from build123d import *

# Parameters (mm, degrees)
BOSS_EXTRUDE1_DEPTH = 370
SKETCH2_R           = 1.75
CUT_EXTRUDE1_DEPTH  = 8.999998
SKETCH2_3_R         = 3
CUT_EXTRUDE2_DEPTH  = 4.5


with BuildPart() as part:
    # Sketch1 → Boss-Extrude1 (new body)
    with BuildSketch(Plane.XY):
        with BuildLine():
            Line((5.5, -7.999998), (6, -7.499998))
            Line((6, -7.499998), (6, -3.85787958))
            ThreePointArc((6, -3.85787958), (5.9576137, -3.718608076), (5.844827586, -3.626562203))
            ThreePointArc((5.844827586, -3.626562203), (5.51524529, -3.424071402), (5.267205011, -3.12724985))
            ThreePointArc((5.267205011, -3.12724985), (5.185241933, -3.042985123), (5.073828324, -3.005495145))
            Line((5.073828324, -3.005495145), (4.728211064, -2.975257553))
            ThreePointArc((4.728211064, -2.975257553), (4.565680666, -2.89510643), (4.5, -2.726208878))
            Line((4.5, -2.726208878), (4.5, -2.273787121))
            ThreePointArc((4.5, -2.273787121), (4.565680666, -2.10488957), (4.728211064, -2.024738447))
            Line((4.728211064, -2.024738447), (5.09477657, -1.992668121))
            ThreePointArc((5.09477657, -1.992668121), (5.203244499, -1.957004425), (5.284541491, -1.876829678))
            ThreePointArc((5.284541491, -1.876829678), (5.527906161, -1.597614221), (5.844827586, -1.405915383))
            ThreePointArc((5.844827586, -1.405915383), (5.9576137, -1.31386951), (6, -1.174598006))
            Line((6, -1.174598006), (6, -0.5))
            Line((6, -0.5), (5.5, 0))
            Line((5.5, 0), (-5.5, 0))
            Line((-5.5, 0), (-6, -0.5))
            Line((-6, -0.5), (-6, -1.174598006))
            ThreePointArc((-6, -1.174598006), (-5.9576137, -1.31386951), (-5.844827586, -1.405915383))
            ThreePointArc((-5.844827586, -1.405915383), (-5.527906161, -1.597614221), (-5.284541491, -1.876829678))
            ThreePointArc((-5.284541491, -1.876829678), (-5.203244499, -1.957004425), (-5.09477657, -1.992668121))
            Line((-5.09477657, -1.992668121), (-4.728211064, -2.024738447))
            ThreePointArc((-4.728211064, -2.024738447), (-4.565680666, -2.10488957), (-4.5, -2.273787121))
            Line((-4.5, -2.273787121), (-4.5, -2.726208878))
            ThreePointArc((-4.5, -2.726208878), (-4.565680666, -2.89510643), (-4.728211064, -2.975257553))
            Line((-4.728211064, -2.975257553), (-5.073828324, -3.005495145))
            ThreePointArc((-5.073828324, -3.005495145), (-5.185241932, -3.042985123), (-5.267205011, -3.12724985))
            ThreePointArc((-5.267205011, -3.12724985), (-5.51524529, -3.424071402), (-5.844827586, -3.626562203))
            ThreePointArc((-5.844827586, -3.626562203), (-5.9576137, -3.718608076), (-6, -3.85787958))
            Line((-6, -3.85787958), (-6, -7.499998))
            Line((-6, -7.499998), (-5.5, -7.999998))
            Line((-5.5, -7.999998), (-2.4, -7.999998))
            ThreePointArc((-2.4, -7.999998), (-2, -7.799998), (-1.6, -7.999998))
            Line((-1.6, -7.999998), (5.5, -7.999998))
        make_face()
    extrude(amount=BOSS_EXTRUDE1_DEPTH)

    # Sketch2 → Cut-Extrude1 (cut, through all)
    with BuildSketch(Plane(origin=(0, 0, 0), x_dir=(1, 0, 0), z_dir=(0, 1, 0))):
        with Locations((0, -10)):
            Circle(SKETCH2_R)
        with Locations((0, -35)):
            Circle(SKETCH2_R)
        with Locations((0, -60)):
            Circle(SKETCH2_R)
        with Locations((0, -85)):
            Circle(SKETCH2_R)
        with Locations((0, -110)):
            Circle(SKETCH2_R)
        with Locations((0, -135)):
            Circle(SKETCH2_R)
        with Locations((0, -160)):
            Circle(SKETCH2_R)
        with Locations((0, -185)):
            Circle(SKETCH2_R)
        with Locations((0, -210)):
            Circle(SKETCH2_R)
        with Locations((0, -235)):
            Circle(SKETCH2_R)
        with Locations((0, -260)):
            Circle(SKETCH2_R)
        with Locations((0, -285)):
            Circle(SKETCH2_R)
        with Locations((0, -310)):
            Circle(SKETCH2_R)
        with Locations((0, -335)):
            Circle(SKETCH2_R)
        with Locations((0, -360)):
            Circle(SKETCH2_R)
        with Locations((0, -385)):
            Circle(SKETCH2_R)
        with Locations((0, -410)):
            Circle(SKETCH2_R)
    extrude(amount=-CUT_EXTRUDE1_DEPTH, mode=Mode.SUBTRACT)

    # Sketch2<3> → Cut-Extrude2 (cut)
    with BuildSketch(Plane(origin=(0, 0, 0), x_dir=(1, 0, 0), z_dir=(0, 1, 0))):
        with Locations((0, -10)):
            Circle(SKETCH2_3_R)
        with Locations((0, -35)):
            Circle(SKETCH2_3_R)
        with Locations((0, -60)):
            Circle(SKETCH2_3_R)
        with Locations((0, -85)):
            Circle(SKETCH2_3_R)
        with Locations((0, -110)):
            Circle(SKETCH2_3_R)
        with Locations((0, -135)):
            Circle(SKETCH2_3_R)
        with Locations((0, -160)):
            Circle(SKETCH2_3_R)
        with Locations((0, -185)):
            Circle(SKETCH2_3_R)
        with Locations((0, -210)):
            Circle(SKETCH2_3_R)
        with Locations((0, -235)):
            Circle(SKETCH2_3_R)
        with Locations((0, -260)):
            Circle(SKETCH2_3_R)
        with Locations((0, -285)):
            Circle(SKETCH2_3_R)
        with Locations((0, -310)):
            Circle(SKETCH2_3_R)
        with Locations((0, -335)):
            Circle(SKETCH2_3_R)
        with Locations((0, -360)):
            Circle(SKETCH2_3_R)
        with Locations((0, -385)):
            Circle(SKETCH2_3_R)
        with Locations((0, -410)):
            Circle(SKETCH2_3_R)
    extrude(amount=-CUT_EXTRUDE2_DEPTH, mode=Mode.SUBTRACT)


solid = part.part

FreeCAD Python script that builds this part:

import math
import FreeCAD as App
import Part
import Sketcher

V = App.Vector
Q = App.Units.Quantity

doc = App.newDocument("Part")
body = doc.addObject("PartDesign::Body", "Body")

# Sketch on XY plane
sketch1 = doc.addObject("Sketcher::SketchObject", "Sketch")
body.addObject(sketch1)
sketch1.AttachmentSupport = (doc.XY_Plane, [""])
sketch1.MapMode = "FlatFace"
sketch1.addGeometry(Part.LineSegment(V(5.5, -7.999998, 0), V(6, -7.499998, 0)), False)
sketch1.addGeometry(Part.LineSegment(V(6, -7.499998, 0), V(6, -3.85788, 0)), False)
sketch1.addGeometry(Part.ArcOfCircle(Part.Circle(V(5.75, -3.85788, 0), V(0, 0, 1), 0.25), math.radians(0), math.radians(67.70903)), False)
sketch1.addGeometry(Part.ArcOfCircle(Part.Circle(V(6.3, -2.516239, 0), V(0, 0, 1), 1.2), math.radians(-149.391049), math.radians(-112.29097)), False)
sketch1.addGeometry(Part.ArcOfCircle(Part.Circle(V(5.052039, -3.254544, 0), V(0, 0, 1), 0.25), math.radians(30.608951), math.radians(85)), False)
sketch1.addGeometry(Part.LineSegment(V(5.073828, -3.005495, 0), V(4.728211, -2.975258, 0)), False)
sketch1.addGeometry(Part.ArcOfCircle(Part.Circle(V(4.75, -2.726209, 0), V(0, 0, 1), 0.25), math.radians(-180), math.radians(-95)), False)
sketch1.addGeometry(Part.LineSegment(V(4.5, -2.726209, 0), V(4.5, -2.273787, 0)), False)
sketch1.addGeometry(Part.ArcOfCircle(Part.Circle(V(4.75, -2.273787, 0), V(0, 0, 1), 0.25), math.radians(95), math.radians(180)), False)
sketch1.addGeometry(Part.LineSegment(V(4.728211, -2.024738, 0), V(5.094777, -1.992668, 0)), False)
sketch1.addGeometry(Part.ArcOfCircle(Part.Circle(V(5.072988, -1.743619, 0), V(0, 0, 1), 0.25), math.radians(-85), math.radians(-32.197607)), False)
sketch1.addGeometry(Part.ArcOfCircle(Part.Circle(V(6.3, -2.516239, 0), V(0, 0, 1), 1.2), math.radians(112.29097), math.radians(147.802393)), False)
sketch1.addGeometry(Part.ArcOfCircle(Part.Circle(V(5.75, -1.174598, 0), V(0, 0, 1), 0.25), math.radians(-67.70903), math.radians(0)), False)
sketch1.addGeometry(Part.LineSegment(V(6, -1.174598, 0), V(6, -0.5, 0)), False)
sketch1.addGeometry(Part.LineSegment(V(6, -0.5, 0), V(5.5, 0, 0)), False)
sketch1.addGeometry(Part.LineSegment(V(5.5, 0, 0), V(-5.5, 0, 0)), False)
sketch1.addGeometry(Part.LineSegment(V(-5.5, 0, 0), V(-6, -0.5, 0)), False)
sketch1.addGeometry(Part.LineSegment(V(-6, -0.5, 0), V(-6, -1.174598, 0)), False)
sketch1.addGeometry(Part.ArcOfCircle(Part.Circle(V(-5.75, -1.174598, 0), V(0, 0, 1), 0.25), math.radians(180), math.radians(247.70903)), False)
sketch1.addGeometry(Part.ArcOfCircle(Part.Circle(V(-6.3, -2.516239, 0), V(0, 0, 1), 1.2), math.radians(32.197607), math.radians(67.70903)), False)
sketch1.addGeometry(Part.ArcOfCircle(Part.Circle(V(-5.072988, -1.743619, 0), V(0, 0, 1), 0.25), math.radians(-147.802393), math.radians(-95)), False)
sketch1.addGeometry(Part.LineSegment(V(-5.094777, -1.992668, 0), V(-4.728211, -2.024738, 0)), False)
sketch1.addGeometry(Part.ArcOfCircle(Part.Circle(V(-4.75, -2.273787, 0), V(0, 0, 1), 0.25), math.radians(0), math.radians(85)), False)
sketch1.addGeometry(Part.LineSegment(V(-4.5, -2.273787, 0), V(-4.5, -2.726209, 0)), False)
sketch1.addGeometry(Part.ArcOfCircle(Part.Circle(V(-4.75, -2.726209, 0), V(0, 0, 1), 0.25), math.radians(-85), math.radians(0)), False)
sketch1.addGeometry(Part.LineSegment(V(-4.728211, -2.975258, 0), V(-5.073828, -3.005495, 0)), False)
sketch1.addGeometry(Part.ArcOfCircle(Part.Circle(V(-5.052039, -3.254544, 0), V(0, 0, 1), 0.25), math.radians(95), math.radians(149.391049)), False)
sketch1.addGeometry(Part.ArcOfCircle(Part.Circle(V(-6.3, -2.516239, 0), V(0, 0, 1), 1.2), math.radians(-67.70903), math.radians(-30.608951)), False)
sketch1.addGeometry(Part.ArcOfCircle(Part.Circle(V(-5.75, -3.85788, 0), V(0, 0, 1), 0.25), math.radians(112.29097), math.radians(180)), False)
sketch1.addGeometry(Part.LineSegment(V(-6, -3.85788, 0), V(-6, -7.499998, 0)), False)
sketch1.addGeometry(Part.LineSegment(V(-6, -7.499998, 0), V(-5.5, -7.999998, 0)), False)
sketch1.addGeometry(Part.LineSegment(V(-5.5, -7.999998, 0), V(-2.4, -7.999998, 0)), False)
sketch1.addGeometry(Part.ArcOfCircle(Part.Circle(V(-2, -8.299998, 0), V(0, 0, 1), 0.5), math.radians(36.869898), math.radians(143.130102)), False)
sketch1.addGeometry(Part.LineSegment(V(-1.6, -7.999998, 0), V(5.5, -7.999998, 0)), False)
sketch1.addConstraint(Sketcher.Constraint("Coincident", 0, 2, 1, 1))
sketch1.addConstraint(Sketcher.Constraint("Tangent", 1, 2, 2, 1))
sketch1.addConstraint(Sketcher.Constraint("Tangent", 2, 2, 3, 2))
sketch1.addConstraint(Sketcher.Constraint("Tangent", 3, 1, 4, 1))
sketch1.addConstraint(Sketcher.Constraint("Tangent", 4, 2, 5, 1))
sketch1.addConstraint(Sketcher.Constraint("Tangent", 5, 2, 6, 2))
sketch1.addConstraint(Sketcher.Constraint("Tangent", 6, 1, 7, 1))
sketch1.addConstraint(Sketcher.Constraint("Tangent", 7, 2, 8, 2))
sketch1.addConstraint(Sketcher.Constraint("Tangent", 8, 1, 9, 1))
sketch1.addConstraint(Sketcher.Constraint("Tangent", 9, 2, 10, 1))
sketch1.addConstraint(Sketcher.Constraint("Tangent", 10, 2, 11, 2))
sketch1.addConstraint(Sketcher.Constraint("Tangent", 11, 1, 12, 1))
sketch1.addConstraint(Sketcher.Constraint("Tangent", 12, 2, 13, 1))
sketch1.addConstraint(Sketcher.Constraint("Coincident", 13, 2, 14, 1))
sketch1.addConstraint(Sketcher.Constraint("Coincident", 14, 2, 15, 1))
sketch1.addConstraint(Sketcher.Constraint("Coincident", 15, 2, 16, 1))
sketch1.addConstraint(Sketcher.Constraint("Coincident", 16, 2, 17, 1))
sketch1.addConstraint(Sketcher.Constraint("Tangent", 17, 2, 18, 1))
sketch1.addConstraint(Sketcher.Constraint("Tangent", 18, 2, 19, 2))
sketch1.addConstraint(Sketcher.Constraint("Tangent", 19, 1, 20, 1))
sketch1.addConstraint(Sketcher.Constraint("Tangent", 20, 2, 21, 1))
sketch1.addConstraint(Sketcher.Constraint("Tangent", 21, 2, 22, 2))
sketch1.addConstraint(Sketcher.Constraint("Tangent", 22, 1, 23, 1))
sketch1.addConstraint(Sketcher.Constraint("Tangent", 23, 2, 24, 2))
sketch1.addConstraint(Sketcher.Constraint("Tangent", 24, 1, 25, 1))
sketch1.addConstraint(Sketcher.Constraint("Tangent", 25, 2, 26, 1))
sketch1.addConstraint(Sketcher.Constraint("Tangent", 26, 2, 27, 2))
sketch1.addConstraint(Sketcher.Constraint("Tangent", 27, 1, 28, 1))
sketch1.addConstraint(Sketcher.Constraint("Tangent", 28, 2, 29, 1))
sketch1.addConstraint(Sketcher.Constraint("Coincident", 29, 2, 30, 1))
sketch1.addConstraint(Sketcher.Constraint("Coincident", 30, 2, 31, 1))
sketch1.addConstraint(Sketcher.Constraint("Coincident", 31, 2, 32, 2))
sketch1.addConstraint(Sketcher.Constraint("Coincident", 32, 1, 33, 1))
sketch1.addConstraint(Sketcher.Constraint("Coincident", 33, 2, 0, 1))
sketch1.addConstraint(Sketcher.Constraint("Vertical", 1))
sketch1.addConstraint(Sketcher.Constraint("Vertical", 7))
sketch1.addConstraint(Sketcher.Constraint("Vertical", 13))
sketch1.addConstraint(Sketcher.Constraint("Horizontal", 15))
sketch1.addConstraint(Sketcher.Constraint("Vertical", 17))
sketch1.addConstraint(Sketcher.Constraint("Vertical", 23))
sketch1.addConstraint(Sketcher.Constraint("Vertical", 29))
sketch1.addConstraint(Sketcher.Constraint("Horizontal", 31))
sketch1.addConstraint(Sketcher.Constraint("Horizontal", 33))
sketch1.addConstraint(Sketcher.Constraint("Coincident", 11, 3, 3, 3))
sketch1.addConstraint(Sketcher.Constraint("Coincident", 27, 3, 19, 3))
sketch1.addConstraint(Sketcher.Constraint("Equal", 2, 4))
sketch1.addConstraint(Sketcher.Constraint("Equal", 4, 6))
sketch1.addConstraint(Sketcher.Constraint("Equal", 6, 8))
sketch1.addConstraint(Sketcher.Constraint("Equal", 8, 10))
sketch1.addConstraint(Sketcher.Constraint("Equal", 3, 11))
sketch1.addConstraint(Sketcher.Constraint("Equal", 10, 12))
sketch1.addConstraint(Sketcher.Constraint("Equal", 12, 18))
sketch1.addConstraint(Sketcher.Constraint("Equal", 11, 19))
sketch1.addConstraint(Sketcher.Constraint("Equal", 18, 20))
sketch1.addConstraint(Sketcher.Constraint("Equal", 20, 22))
sketch1.addConstraint(Sketcher.Constraint("Equal", 22, 24))
sketch1.addConstraint(Sketcher.Constraint("Equal", 24, 26))
sketch1.addConstraint(Sketcher.Constraint("Equal", 19, 27))
sketch1.addConstraint(Sketcher.Constraint("Equal", 26, 28))
sketch1.addConstraint(Sketcher.Constraint("Symmetric", 14, 2, 15, 2, -1, 1))
sketch1.addConstraint(Sketcher.Constraint("Symmetric", 12, 3, 18, 3, -2))
sketch1.addConstraint(Sketcher.Constraint("Symmetric", 10, 3, 20, 3, -2))
sketch1.addConstraint(Sketcher.Constraint("Symmetric", 8, 3, 22, 3, -2))
sketch1.addConstraint(Sketcher.Constraint("Symmetric", 5, 2, 24, 1, -2))
sketch1.addConstraint(Sketcher.Constraint("Symmetric", 0, 2, 29, 2, -2))
sketch1.addConstraint(Sketcher.Constraint("Symmetric", 30, 2, 33, 2, -2))
sketch1.addConstraint(Sketcher.Constraint("Perpendicular", 0, 14))
sketch1.addConstraint(Sketcher.Constraint("Perpendicular", 14, 16))
sketch1.addConstraint(Sketcher.Constraint("Parallel", 5, 21))
sketch1.addConstraint(Sketcher.Constraint("Perpendicular", 16, 30))
sketch1.addConstraint(Sketcher.Constraint("Vertical", 2, 3, 12, 3))
sketch1.addConstraint(Sketcher.Constraint("Vertical", 15, 2, 30, 2))
sketch1.addConstraint(Sketcher.Constraint("Radius", 3, Q("1.2 mm")))
sketch1.addConstraint(Sketcher.Constraint("Radius", 32, Q("0.5 mm")))
sketch1.addConstraint(Sketcher.Constraint("DistanceX", 15, 2, 15, 1, Q("11 mm")))
sketch1.addConstraint(Sketcher.Constraint("Angle", 5, Q("175 deg")))
sketch1.addConstraint(Sketcher.Constraint("Radius", 2, Q("0.25 mm")))
sketch1.addConstraint(Sketcher.Constraint("DistanceX", 31, 1, 31, 2, Q("3.1 mm")))
sketch1.addConstraint(Sketcher.Constraint("DistanceX", 33, 1, 33, 2, Q("7.1 mm")))
sketch1.addConstraint(Sketcher.Constraint("DistanceX", -1, 1, 0, 2, Q("6 mm")))
sketch1.addConstraint(Sketcher.Constraint("DistanceX", 6, 3, 2, 3, Q("1 mm")))
sketch1.addConstraint(Sketcher.Constraint("DistanceX", -1, 1, 3, 3, Q("6.3 mm")))
sketch1.addConstraint(Sketcher.Constraint("DistanceY", 13, 1, 13, 2, Q("0.674598 mm")))
sketch1.addConstraint(Sketcher.Constraint("DistanceX", 4, 2, 2, 2, Q("0.770999 mm")))
sketch1.addConstraint(Sketcher.Constraint("DistanceY", 1, 1, 1, 2, Q("3.642118 mm")))
sketch1.addConstraint(Sketcher.Constraint("DistanceY", 7, 1, 7, 2, Q("0.452422 mm")))
pad1 = doc.addObject("PartDesign::Pad", "Pad")
body.addObject(pad1)
pad1.Profile = sketch1
pad1.Length = 370

# Sketch on XZ plane
sketch2 = doc.addObject("Sketcher::SketchObject", "Sketch001")
body.addObject(sketch2)
sketch2.AttachmentSupport = (doc.XZ_Plane, [""])
sketch2.MapMode = "FlatFace"
sketch2.addGeometry(Part.Circle(V(0, 10, 0), V(0, 0, 1), 1.75), False)
sketch2.addGeometry(Part.Circle(V(0, 35, 0), V(0, 0, 1), 1.75), False)
sketch2.addGeometry(Part.Circle(V(0, 60, 0), V(0, 0, 1), 1.75), False)
sketch2.addGeometry(Part.Circle(V(0, 85, 0), V(0, 0, 1), 1.75), False)
sketch2.addGeometry(Part.Circle(V(0, 110, 0), V(0, 0, 1), 1.75), False)
sketch2.addGeometry(Part.Circle(V(0, 135, 0), V(0, 0, 1), 1.75), False)
sketch2.addGeometry(Part.Circle(V(0, 160, 0), V(0, 0, 1), 1.75), False)
sketch2.addGeometry(Part.Circle(V(0, 185, 0), V(0, 0, 1), 1.75), False)
sketch2.addGeometry(Part.Circle(V(0, 210, 0), V(0, 0, 1), 1.75), False)
sketch2.addGeometry(Part.Circle(V(0, 235, 0), V(0, 0, 1), 1.75), False)
sketch2.addGeometry(Part.Circle(V(0, 260, 0), V(0, 0, 1), 1.75), False)
sketch2.addGeometry(Part.Circle(V(0, 285, 0), V(0, 0, 1), 1.75), False)
sketch2.addGeometry(Part.Circle(V(0, 310, 0), V(0, 0, 1), 1.75), False)
sketch2.addGeometry(Part.Circle(V(0, 335, 0), V(0, 0, 1), 1.75), False)
sketch2.addGeometry(Part.Circle(V(0, 360, 0), V(0, 0, 1), 1.75), False)
sketch2.addGeometry(Part.Circle(V(0, 385, 0), V(0, 0, 1), 1.75), False)
sketch2.addGeometry(Part.Circle(V(0, 410, 0), V(0, 0, 1), 1.75), False)
sketch2.addConstraint(Sketcher.Constraint("Equal", 0, 1))
sketch2.addConstraint(Sketcher.Constraint("Equal", 1, 2))
sketch2.addConstraint(Sketcher.Constraint("Equal", 2, 3))
sketch2.addConstraint(Sketcher.Constraint("Equal", 3, 4))
sketch2.addConstraint(Sketcher.Constraint("Equal", 4, 5))
sketch2.addConstraint(Sketcher.Constraint("Equal", 5, 6))
sketch2.addConstraint(Sketcher.Constraint("Equal", 6, 7))
sketch2.addConstraint(Sketcher.Constraint("Equal", 7, 8))
sketch2.addConstraint(Sketcher.Constraint("Equal", 8, 9))
sketch2.addConstraint(Sketcher.Constraint("Equal", 9, 10))
sketch2.addConstraint(Sketcher.Constraint("Equal", 10, 11))
sketch2.addConstraint(Sketcher.Constraint("Equal", 11, 12))
sketch2.addConstraint(Sketcher.Constraint("Equal", 12, 13))
sketch2.addConstraint(Sketcher.Constraint("Equal", 13, 14))
sketch2.addConstraint(Sketcher.Constraint("Equal", 14, 15))
sketch2.addConstraint(Sketcher.Constraint("Equal", 15, 16))
sketch2.addConstraint(Sketcher.Constraint("PointOnObject", 0, 3, -2))
sketch2.addConstraint(Sketcher.Constraint("PointOnObject", 1, 3, -2))
sketch2.addConstraint(Sketcher.Constraint("PointOnObject", 2, 3, -2))
sketch2.addConstraint(Sketcher.Constraint("PointOnObject", 3, 3, -2))
sketch2.addConstraint(Sketcher.Constraint("PointOnObject", 4, 3, -2))
sketch2.addConstraint(Sketcher.Constraint("PointOnObject", 5, 3, -2))
sketch2.addConstraint(Sketcher.Constraint("PointOnObject", 6, 3, -2))
sketch2.addConstraint(Sketcher.Constraint("PointOnObject", 7, 3, -2))
sketch2.addConstraint(Sketcher.Constraint("PointOnObject", 8, 3, -2))
sketch2.addConstraint(Sketcher.Constraint("PointOnObject", 9, 3, -2))
sketch2.addConstraint(Sketcher.Constraint("PointOnObject", 10, 3, -2))
sketch2.addConstraint(Sketcher.Constraint("PointOnObject", 11, 3, -2))
sketch2.addConstraint(Sketcher.Constraint("PointOnObject", 12, 3, -2))
sketch2.addConstraint(Sketcher.Constraint("PointOnObject", 13, 3, -2))
sketch2.addConstraint(Sketcher.Constraint("PointOnObject", 14, 3, -2))
sketch2.addConstraint(Sketcher.Constraint("PointOnObject", 15, 3, -2))
sketch2.addConstraint(Sketcher.Constraint("PointOnObject", 16, 3, -2))
sketch2.addConstraint(Sketcher.Constraint("Diameter", 0, Q("3.5 mm")))
sketch2.addConstraint(Sketcher.Constraint("DistanceY", -1, 1, 0, 3, Q("10 mm")))
sketch2.addConstraint(Sketcher.Constraint("DistanceY", -1, 1, 1, 3, Q("35 mm")))
sketch2.addConstraint(Sketcher.Constraint("DistanceY", -1, 1, 2, 3, Q("60 mm")))
sketch2.addConstraint(Sketcher.Constraint("DistanceY", -1, 1, 3, 3, Q("85 mm")))
sketch2.addConstraint(Sketcher.Constraint("DistanceY", -1, 1, 4, 3, Q("110 mm")))
sketch2.addConstraint(Sketcher.Constraint("DistanceY", -1, 1, 5, 3, Q("135 mm")))
sketch2.addConstraint(Sketcher.Constraint("DistanceY", -1, 1, 6, 3, Q("160 mm")))
sketch2.addConstraint(Sketcher.Constraint("DistanceY", -1, 1, 7, 3, Q("185 mm")))
sketch2.addConstraint(Sketcher.Constraint("DistanceY", -1, 1, 8, 3, Q("210 mm")))
sketch2.addConstraint(Sketcher.Constraint("DistanceY", -1, 1, 9, 3, Q("235 mm")))
sketch2.addConstraint(Sketcher.Constraint("DistanceY", -1, 1, 10, 3, Q("260 mm")))
sketch2.addConstraint(Sketcher.Constraint("DistanceY", -1, 1, 11, 3, Q("285 mm")))
sketch2.addConstraint(Sketcher.Constraint("DistanceY", -1, 1, 12, 3, Q("310 mm")))
sketch2.addConstraint(Sketcher.Constraint("DistanceY", -1, 1, 13, 3, Q("335 mm")))
sketch2.addConstraint(Sketcher.Constraint("DistanceY", -1, 1, 14, 3, Q("360 mm")))
sketch2.addConstraint(Sketcher.Constraint("DistanceY", -1, 1, 15, 3, Q("385 mm")))
sketch2.addConstraint(Sketcher.Constraint("DistanceY", -1, 1, 16, 3, Q("410 mm")))
pocket1 = doc.addObject("PartDesign::Pocket", "Pocket")
body.addObject(pocket1)
pocket1.Profile = sketch2
pocket1.Type = "ThroughAll"
pocket1.Reversed = True

# Sketch on XZ plane
sketch3 = doc.addObject("Sketcher::SketchObject", "Sketch002")
body.addObject(sketch3)
sketch3.AttachmentSupport = (doc.XZ_Plane, [""])
sketch3.MapMode = "FlatFace"
sketch3.addGeometry(Part.Circle(V(0, 10, 0), V(0, 0, 1), 3), False)
sketch3.addGeometry(Part.Circle(V(0, 35, 0), V(0, 0, 1), 3), False)
sketch3.addGeometry(Part.Circle(V(0, 60, 0), V(0, 0, 1), 3), False)
sketch3.addGeometry(Part.Circle(V(0, 85, 0), V(0, 0, 1), 3), False)
sketch3.addGeometry(Part.Circle(V(0, 110, 0), V(0, 0, 1), 3), False)
sketch3.addGeometry(Part.Circle(V(0, 135, 0), V(0, 0, 1), 3), False)
sketch3.addGeometry(Part.Circle(V(0, 160, 0), V(0, 0, 1), 3), False)
sketch3.addGeometry(Part.Circle(V(0, 185, 0), V(0, 0, 1), 3), False)
sketch3.addGeometry(Part.Circle(V(0, 210, 0), V(0, 0, 1), 3), False)
sketch3.addGeometry(Part.Circle(V(0, 235, 0), V(0, 0, 1), 3), False)
sketch3.addGeometry(Part.Circle(V(0, 260, 0), V(0, 0, 1), 3), False)
sketch3.addGeometry(Part.Circle(V(0, 285, 0), V(0, 0, 1), 3), False)
sketch3.addGeometry(Part.Circle(V(0, 310, 0), V(0, 0, 1), 3), False)
sketch3.addGeometry(Part.Circle(V(0, 335, 0), V(0, 0, 1), 3), False)
sketch3.addGeometry(Part.Circle(V(0, 360, 0), V(0, 0, 1), 3), False)
sketch3.addGeometry(Part.Circle(V(0, 385, 0), V(0, 0, 1), 3), False)
sketch3.addGeometry(Part.Circle(V(0, 410, 0), V(0, 0, 1), 3), False)
sketch3.addConstraint(Sketcher.Constraint("Equal", 0, 1))
sketch3.addConstraint(Sketcher.Constraint("Equal", 1, 2))
sketch3.addConstraint(Sketcher.Constraint("Equal", 2, 3))
sketch3.addConstraint(Sketcher.Constraint("Equal", 3, 4))
sketch3.addConstraint(Sketcher.Constraint("Equal", 4, 5))
sketch3.addConstraint(Sketcher.Constraint("Equal", 5, 6))
sketch3.addConstraint(Sketcher.Constraint("Equal", 6, 7))
sketch3.addConstraint(Sketcher.Constraint("Equal", 7, 8))
sketch3.addConstraint(Sketcher.Constraint("Equal", 8, 9))
sketch3.addConstraint(Sketcher.Constraint("Equal", 9, 10))
sketch3.addConstraint(Sketcher.Constraint("Equal", 10, 11))
sketch3.addConstraint(Sketcher.Constraint("Equal", 11, 12))
sketch3.addConstraint(Sketcher.Constraint("Equal", 12, 13))
sketch3.addConstraint(Sketcher.Constraint("Equal", 13, 14))
sketch3.addConstraint(Sketcher.Constraint("Equal", 14, 15))
sketch3.addConstraint(Sketcher.Constraint("Equal", 15, 16))
sketch3.addConstraint(Sketcher.Constraint("PointOnObject", 0, 3, -2))
sketch3.addConstraint(Sketcher.Constraint("PointOnObject", 1, 3, -2))
sketch3.addConstraint(Sketcher.Constraint("PointOnObject", 2, 3, -2))
sketch3.addConstraint(Sketcher.Constraint("PointOnObject", 3, 3, -2))
sketch3.addConstraint(Sketcher.Constraint("PointOnObject", 4, 3, -2))
sketch3.addConstraint(Sketcher.Constraint("PointOnObject", 5, 3, -2))
sketch3.addConstraint(Sketcher.Constraint("PointOnObject", 6, 3, -2))
sketch3.addConstraint(Sketcher.Constraint("PointOnObject", 7, 3, -2))
sketch3.addConstraint(Sketcher.Constraint("PointOnObject", 8, 3, -2))
sketch3.addConstraint(Sketcher.Constraint("PointOnObject", 9, 3, -2))
sketch3.addConstraint(Sketcher.Constraint("PointOnObject", 10, 3, -2))
sketch3.addConstraint(Sketcher.Constraint("PointOnObject", 11, 3, -2))
sketch3.addConstraint(Sketcher.Constraint("PointOnObject", 12, 3, -2))
sketch3.addConstraint(Sketcher.Constraint("PointOnObject", 13, 3, -2))
sketch3.addConstraint(Sketcher.Constraint("PointOnObject", 14, 3, -2))
sketch3.addConstraint(Sketcher.Constraint("PointOnObject", 15, 3, -2))
sketch3.addConstraint(Sketcher.Constraint("PointOnObject", 16, 3, -2))
sketch3.addConstraint(Sketcher.Constraint("Diameter", 0, Q("6 mm")))
sketch3.addConstraint(Sketcher.Constraint("DistanceY", -1, 1, 0, 3, Q("10 mm")))
sketch3.addConstraint(Sketcher.Constraint("DistanceY", -1, 1, 1, 3, Q("35 mm")))
sketch3.addConstraint(Sketcher.Constraint("DistanceY", -1, 1, 2, 3, Q("60 mm")))
sketch3.addConstraint(Sketcher.Constraint("DistanceY", -1, 1, 3, 3, Q("85 mm")))
sketch3.addConstraint(Sketcher.Constraint("DistanceY", -1, 1, 4, 3, Q("110 mm")))
sketch3.addConstraint(Sketcher.Constraint("DistanceY", -1, 1, 5, 3, Q("135 mm")))
sketch3.addConstraint(Sketcher.Constraint("DistanceY", -1, 1, 6, 3, Q("160 mm")))
sketch3.addConstraint(Sketcher.Constraint("DistanceY", -1, 1, 7, 3, Q("185 mm")))
sketch3.addConstraint(Sketcher.Constraint("DistanceY", -1, 1, 8, 3, Q("210 mm")))
sketch3.addConstraint(Sketcher.Constraint("DistanceY", -1, 1, 9, 3, Q("235 mm")))
sketch3.addConstraint(Sketcher.Constraint("DistanceY", -1, 1, 10, 3, Q("260 mm")))
sketch3.addConstraint(Sketcher.Constraint("DistanceY", -1, 1, 11, 3, Q("285 mm")))
sketch3.addConstraint(Sketcher.Constraint("DistanceY", -1, 1, 12, 3, Q("310 mm")))
sketch3.addConstraint(Sketcher.Constraint("DistanceY", -1, 1, 13, 3, Q("335 mm")))
sketch3.addConstraint(Sketcher.Constraint("DistanceY", -1, 1, 14, 3, Q("360 mm")))
sketch3.addConstraint(Sketcher.Constraint("DistanceY", -1, 1, 15, 3, Q("385 mm")))
sketch3.addConstraint(Sketcher.Constraint("DistanceY", -1, 1, 16, 3, Q("410 mm")))
pocket2 = doc.addObject("PartDesign::Pocket", "Pocket001")
body.addObject(pocket2)
pocket2.Profile = sketch3
pocket2.Length = 4.5
pocket2.Reversed = True

doc.recompute()
